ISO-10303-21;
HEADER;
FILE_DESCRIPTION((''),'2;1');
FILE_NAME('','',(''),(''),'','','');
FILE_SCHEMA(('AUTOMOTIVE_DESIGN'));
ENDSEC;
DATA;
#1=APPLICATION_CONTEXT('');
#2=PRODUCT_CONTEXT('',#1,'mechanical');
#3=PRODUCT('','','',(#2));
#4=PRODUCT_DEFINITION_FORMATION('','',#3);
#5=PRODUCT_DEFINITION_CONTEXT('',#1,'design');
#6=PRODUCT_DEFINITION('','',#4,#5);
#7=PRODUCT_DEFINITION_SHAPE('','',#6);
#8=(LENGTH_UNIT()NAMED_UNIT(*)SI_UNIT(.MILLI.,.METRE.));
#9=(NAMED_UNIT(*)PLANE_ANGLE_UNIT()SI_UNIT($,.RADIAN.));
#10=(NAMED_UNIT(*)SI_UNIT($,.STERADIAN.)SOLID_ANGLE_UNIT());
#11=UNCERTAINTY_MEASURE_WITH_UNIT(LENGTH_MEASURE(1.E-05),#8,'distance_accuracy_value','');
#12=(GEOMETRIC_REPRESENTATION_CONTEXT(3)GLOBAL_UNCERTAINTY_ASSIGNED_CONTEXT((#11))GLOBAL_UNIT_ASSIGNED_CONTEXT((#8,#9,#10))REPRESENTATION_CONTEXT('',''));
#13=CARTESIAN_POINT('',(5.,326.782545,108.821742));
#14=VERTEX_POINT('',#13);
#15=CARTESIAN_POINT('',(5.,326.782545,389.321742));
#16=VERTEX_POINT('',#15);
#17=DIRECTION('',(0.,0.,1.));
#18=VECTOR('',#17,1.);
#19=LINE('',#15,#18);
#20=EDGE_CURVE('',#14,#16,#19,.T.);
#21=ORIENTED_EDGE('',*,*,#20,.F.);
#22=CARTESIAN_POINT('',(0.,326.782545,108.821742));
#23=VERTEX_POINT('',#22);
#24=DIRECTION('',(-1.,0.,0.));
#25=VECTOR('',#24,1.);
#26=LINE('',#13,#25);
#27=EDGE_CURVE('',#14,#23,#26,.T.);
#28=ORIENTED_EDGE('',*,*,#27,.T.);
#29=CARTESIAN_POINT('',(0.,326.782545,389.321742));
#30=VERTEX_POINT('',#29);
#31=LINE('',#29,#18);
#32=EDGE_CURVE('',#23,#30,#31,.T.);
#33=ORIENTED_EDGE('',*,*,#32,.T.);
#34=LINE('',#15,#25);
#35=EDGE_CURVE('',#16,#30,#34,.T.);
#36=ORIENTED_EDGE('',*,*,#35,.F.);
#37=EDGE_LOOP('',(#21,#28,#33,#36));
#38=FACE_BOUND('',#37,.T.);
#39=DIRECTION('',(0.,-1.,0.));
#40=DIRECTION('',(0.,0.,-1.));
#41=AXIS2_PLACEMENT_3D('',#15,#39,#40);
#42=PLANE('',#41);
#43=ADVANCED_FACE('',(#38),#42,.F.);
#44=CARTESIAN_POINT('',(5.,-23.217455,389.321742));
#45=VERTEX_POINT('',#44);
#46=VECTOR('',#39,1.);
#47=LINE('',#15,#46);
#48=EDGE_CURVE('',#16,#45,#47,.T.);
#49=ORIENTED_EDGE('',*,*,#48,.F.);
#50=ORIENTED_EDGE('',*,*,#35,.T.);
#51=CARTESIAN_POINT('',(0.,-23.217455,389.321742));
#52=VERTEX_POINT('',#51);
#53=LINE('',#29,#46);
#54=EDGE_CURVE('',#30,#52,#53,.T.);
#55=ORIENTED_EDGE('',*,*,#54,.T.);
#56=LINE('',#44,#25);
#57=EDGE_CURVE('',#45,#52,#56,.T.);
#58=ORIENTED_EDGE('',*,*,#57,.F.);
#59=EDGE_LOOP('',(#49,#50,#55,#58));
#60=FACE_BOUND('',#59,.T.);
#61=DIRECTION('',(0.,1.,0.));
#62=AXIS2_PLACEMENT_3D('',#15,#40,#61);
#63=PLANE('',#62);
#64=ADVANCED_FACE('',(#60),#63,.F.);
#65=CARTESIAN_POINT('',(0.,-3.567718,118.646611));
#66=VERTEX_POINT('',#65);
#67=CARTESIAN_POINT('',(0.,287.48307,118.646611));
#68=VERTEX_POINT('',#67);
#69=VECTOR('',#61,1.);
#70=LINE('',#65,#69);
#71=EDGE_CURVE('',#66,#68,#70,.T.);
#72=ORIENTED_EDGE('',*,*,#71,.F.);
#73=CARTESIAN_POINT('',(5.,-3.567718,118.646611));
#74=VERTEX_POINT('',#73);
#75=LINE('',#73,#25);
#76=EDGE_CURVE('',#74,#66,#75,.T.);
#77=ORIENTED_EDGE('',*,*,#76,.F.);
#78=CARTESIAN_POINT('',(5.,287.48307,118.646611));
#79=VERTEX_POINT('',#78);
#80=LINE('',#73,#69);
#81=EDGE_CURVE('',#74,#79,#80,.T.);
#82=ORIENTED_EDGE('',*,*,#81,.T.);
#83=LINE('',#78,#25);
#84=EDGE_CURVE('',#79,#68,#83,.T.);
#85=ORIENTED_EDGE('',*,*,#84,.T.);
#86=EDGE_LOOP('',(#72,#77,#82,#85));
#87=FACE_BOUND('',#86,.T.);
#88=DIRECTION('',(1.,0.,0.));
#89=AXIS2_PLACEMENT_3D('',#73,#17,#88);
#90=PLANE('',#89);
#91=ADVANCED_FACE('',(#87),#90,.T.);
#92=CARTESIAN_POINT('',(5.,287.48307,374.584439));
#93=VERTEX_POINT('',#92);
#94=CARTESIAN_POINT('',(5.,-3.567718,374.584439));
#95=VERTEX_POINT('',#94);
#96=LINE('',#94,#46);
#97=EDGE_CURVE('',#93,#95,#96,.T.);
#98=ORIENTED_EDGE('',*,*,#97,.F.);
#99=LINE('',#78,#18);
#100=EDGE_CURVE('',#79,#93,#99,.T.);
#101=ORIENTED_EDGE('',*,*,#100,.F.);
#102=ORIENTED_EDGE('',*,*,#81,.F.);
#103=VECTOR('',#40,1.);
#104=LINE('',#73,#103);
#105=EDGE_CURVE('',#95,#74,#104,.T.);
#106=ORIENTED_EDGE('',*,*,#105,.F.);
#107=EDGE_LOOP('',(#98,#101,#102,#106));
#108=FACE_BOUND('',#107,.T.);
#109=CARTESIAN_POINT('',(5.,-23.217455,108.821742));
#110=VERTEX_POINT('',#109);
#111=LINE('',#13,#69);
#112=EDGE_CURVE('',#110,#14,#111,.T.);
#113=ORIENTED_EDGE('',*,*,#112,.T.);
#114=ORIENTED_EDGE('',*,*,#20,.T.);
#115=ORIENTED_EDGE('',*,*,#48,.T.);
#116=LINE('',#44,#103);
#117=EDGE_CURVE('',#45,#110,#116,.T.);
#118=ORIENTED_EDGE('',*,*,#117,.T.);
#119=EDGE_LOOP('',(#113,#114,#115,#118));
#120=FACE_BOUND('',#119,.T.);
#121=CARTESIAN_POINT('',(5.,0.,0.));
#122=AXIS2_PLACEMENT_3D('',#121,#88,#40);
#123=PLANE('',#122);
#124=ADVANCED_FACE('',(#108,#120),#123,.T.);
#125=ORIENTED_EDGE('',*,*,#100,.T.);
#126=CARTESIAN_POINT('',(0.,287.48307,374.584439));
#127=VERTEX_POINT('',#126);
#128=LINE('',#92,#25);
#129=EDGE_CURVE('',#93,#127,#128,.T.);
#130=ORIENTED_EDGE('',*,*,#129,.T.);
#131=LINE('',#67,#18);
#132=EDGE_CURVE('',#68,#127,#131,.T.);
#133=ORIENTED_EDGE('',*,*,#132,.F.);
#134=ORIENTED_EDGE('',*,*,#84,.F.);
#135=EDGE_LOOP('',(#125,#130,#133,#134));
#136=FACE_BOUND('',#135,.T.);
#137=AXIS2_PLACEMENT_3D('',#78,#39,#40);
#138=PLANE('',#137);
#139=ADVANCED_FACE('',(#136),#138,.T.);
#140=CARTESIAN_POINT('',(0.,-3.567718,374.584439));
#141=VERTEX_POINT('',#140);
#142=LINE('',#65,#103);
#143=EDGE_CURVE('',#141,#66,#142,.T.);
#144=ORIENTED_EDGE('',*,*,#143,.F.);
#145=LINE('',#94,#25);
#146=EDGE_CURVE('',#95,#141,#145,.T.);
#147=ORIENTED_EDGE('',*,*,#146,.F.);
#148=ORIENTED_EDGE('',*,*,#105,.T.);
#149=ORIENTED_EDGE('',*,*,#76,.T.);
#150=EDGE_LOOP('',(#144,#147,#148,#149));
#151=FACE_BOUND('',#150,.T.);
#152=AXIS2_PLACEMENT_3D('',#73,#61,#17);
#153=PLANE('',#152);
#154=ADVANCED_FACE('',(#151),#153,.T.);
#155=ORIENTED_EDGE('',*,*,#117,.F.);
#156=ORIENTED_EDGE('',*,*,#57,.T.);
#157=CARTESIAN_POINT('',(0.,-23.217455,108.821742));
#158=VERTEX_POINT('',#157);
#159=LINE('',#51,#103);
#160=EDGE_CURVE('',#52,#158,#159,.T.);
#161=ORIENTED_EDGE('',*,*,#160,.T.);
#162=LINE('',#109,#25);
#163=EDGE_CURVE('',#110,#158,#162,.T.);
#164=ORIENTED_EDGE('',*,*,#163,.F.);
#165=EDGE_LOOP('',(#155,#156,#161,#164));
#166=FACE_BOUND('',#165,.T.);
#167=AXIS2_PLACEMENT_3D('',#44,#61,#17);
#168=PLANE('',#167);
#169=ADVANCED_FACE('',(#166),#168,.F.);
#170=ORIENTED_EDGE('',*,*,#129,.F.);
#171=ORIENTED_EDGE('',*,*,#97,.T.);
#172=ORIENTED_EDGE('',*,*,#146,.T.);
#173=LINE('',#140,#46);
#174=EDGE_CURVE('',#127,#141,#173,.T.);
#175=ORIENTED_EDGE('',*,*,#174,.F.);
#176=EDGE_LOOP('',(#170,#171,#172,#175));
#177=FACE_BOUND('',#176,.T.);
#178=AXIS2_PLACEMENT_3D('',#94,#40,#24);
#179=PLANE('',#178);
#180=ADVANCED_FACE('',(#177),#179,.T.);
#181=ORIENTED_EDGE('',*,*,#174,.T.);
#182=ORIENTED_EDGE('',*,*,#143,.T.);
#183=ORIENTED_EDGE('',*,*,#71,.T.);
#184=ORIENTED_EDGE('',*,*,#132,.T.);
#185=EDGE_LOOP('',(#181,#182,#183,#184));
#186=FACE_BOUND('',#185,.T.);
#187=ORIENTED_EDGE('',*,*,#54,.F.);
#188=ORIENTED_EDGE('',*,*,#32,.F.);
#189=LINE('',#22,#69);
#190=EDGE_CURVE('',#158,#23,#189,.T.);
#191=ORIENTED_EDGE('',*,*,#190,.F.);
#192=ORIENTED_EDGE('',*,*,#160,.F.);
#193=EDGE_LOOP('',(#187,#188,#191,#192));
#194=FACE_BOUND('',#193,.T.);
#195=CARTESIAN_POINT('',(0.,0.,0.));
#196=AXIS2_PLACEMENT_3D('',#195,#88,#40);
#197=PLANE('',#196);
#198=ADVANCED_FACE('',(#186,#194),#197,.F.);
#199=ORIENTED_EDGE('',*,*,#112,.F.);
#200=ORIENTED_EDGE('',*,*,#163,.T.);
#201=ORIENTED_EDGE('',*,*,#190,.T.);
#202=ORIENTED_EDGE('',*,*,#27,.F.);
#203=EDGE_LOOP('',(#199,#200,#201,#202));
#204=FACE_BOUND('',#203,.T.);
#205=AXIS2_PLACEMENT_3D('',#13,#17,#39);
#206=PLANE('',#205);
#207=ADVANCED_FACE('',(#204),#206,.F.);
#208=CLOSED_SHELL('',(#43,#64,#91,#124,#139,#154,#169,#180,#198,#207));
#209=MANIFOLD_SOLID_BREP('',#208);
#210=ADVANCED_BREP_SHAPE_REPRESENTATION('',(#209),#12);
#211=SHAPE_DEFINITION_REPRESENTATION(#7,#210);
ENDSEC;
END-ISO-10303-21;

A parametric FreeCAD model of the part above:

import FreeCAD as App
import Part
import Sketcher
from FreeCAD import Vector
Q = App.Units.Quantity


def add_polygon(sketch, points):
    """Adds a closed chain of lines whose ends are joined by coincident constraints."""
    first, n = sketch.GeometryCount, len(points)
    for a, b in zip(points, points[1:] + points[:1]):
        sketch.addGeometry(Part.LineSegment(App.Vector(*a, 0), App.Vector(*b, 0)), False)
    for i in range(n):
        sketch.addConstraint(Sketcher.Constraint("Coincident", first + i, 2, first + (i + 1) % n, 1))

doc = App.newDocument("Part")
body = doc.addObject("PartDesign::Body", "Body")

# Sketch on YZ plane
sketch1 = body.newObject("Sketcher::SketchObject", "Sketch")
sketch1.AttachmentSupport = (doc.getObject("YZ_Plane"), [""])
sketch1.MapMode = "FlatFace"
add_polygon(sketch1, [(327, 389), (-23, 389), (-23, 109), (327, 109)])  # lines 0-3
add_polygon(sketch1, [(-4, 119), (-4, 375), (287, 375), (287, 119)])  # lines 4-7
sketch1.addConstraint([
    Sketcher.Constraint("Horizontal", 0),
    Sketcher.Constraint("Vertical", 1),
    Sketcher.Constraint("Horizontal", 2),
    Sketcher.Constraint("Vertical", 3),
    Sketcher.Constraint("Vertical", 4),
    Sketcher.Constraint("Horizontal", 5),
    Sketcher.Constraint("Vertical", 6),
    Sketcher.Constraint("Horizontal", 7),
    Sketcher.Constraint("DistanceX", 0, 2, 0, 1, Q("350 mm")),
    Sketcher.Constraint("DistanceY", 1, 2, 1, 1, Q("280.5 mm")),
    Sketcher.Constraint("DistanceX", 5, 1, 5, 2, Q("291.050788 mm")),
    Sketcher.Constraint("DistanceY", 4, 1, 4, 2, Q("255.937828 mm")),
    Sketcher.Constraint("DistanceY", -1, 1, 0, 2, Q("389.321742 mm")),
    Sketcher.Constraint("DistanceY", -1, 1, 4, 2, Q("374.584439 mm")),
    Sketcher.Constraint("DistanceX", -1, 1, 5, 2, Q("287.48307 mm")),
    Sketcher.Constraint("DistanceX", 0, 2, -1, 1, Q("23.217455 mm")),
])
pad1 = body.newObject("PartDesign::Pad", "Pad")
pad1.Profile = sketch1
pad1.Length = 5

doc.recompute()
